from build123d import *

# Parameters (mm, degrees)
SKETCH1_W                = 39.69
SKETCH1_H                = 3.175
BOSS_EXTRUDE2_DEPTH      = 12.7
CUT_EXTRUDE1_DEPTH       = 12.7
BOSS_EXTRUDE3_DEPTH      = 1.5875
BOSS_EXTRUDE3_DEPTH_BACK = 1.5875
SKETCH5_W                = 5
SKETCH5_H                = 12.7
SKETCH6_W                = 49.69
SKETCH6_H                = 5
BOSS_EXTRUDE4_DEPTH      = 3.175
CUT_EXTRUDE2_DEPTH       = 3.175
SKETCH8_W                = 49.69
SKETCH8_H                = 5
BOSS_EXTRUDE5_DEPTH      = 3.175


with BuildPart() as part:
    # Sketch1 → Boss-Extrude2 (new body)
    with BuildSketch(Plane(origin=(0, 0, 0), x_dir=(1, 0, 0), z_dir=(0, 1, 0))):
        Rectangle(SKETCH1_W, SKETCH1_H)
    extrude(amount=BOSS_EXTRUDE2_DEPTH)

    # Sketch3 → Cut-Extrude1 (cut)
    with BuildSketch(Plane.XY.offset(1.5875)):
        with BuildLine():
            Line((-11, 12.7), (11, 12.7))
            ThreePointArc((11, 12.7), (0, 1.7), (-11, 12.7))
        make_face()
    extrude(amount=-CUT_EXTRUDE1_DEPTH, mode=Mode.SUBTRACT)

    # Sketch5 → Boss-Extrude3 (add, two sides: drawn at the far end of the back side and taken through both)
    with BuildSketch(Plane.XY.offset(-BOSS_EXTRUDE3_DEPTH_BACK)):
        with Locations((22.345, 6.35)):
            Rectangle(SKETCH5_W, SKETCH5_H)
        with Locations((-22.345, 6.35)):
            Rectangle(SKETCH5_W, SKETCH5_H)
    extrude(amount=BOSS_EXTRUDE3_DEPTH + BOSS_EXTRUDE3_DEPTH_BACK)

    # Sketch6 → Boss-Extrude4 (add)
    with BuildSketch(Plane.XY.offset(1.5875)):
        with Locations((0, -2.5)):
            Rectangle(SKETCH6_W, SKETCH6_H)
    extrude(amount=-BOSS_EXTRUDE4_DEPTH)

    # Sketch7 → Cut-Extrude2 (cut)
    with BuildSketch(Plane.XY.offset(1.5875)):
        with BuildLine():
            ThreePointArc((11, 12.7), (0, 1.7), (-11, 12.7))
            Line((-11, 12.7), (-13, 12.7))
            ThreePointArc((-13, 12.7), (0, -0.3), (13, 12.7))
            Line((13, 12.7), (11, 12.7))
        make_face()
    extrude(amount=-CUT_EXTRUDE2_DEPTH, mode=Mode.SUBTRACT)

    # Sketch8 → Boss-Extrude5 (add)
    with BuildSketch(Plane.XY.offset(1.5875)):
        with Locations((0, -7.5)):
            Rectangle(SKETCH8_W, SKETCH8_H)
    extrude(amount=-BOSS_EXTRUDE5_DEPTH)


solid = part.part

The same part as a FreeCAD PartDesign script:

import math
import FreeCAD as App
import Part
import Sketcher

doc = App.newDocument("Part")
body = doc.addObject("PartDesign::Body", "Body")

sketch1 = doc.addObject("Sketcher::SketchObject", "Sketch")
body.addObject(sketch1)
sketch1.AttachmentSupport = (doc.XZ_Plane, [""])
sketch1.MapMode = "FlatFace"
sketch1.addGeometry([
    Part.LineSegment(App.Vector(-19.8, -1.6, 0), App.Vector(-19.8, 1.6, 0)),
    Part.LineSegment(App.Vector(-19.8, 1.6, 0), App.Vector(19.8, 1.6, 0)),
    Part.LineSegment(App.Vector(19.8, 1.6, 0), App.Vector(19.8, -1.6, 0)),
    Part.LineSegment(App.Vector(19.8, -1.6, 0), App.Vector(-19.8, -1.6, 0)),
], False)
sketch1.addConstraint([
    Sketcher.Constraint("Coincident", 0, 2, 1, 1),
    Sketcher.Constraint("Coincident", 1, 2, 2, 1),
    Sketcher.Constraint("Coincident", 2, 2, 3, 1),
    Sketcher.Constraint("Coincident", 3, 2, 0, 1),
    Sketcher.Constraint("Vertical", 0),
    Sketcher.Constraint("Horizontal", 1),
    Sketcher.Constraint("Vertical", 2),
    Sketcher.Constraint("Horizontal", 3),
    Sketcher.Constraint("Symmetric", 0, 2, 2, 2, -1, 1),
    Sketcher.Constraint("DistanceX", 1, 1, 1, 2, 39.69),
    Sketcher.Constraint("DistanceY", 0, 1, 0, 2, 3.175),
])
pad1 = doc.addObject("PartDesign::Pad", "Pad")
body.addObject(pad1)
pad1.Profile = sketch1
pad1.Length = 12.7
pad1.Reversed = True

sketch2 = doc.addObject("Sketcher::SketchObject", "Sketch001")
body.addObject(sketch2)
sketch2.AttachmentSupport = (doc.XY_Plane, [""])
sketch2.MapMode = "FlatFace"
sketch2.AttachmentOffset = App.Placement(App.Vector(0, 0, 1.5875), App.Rotation())
sketch2.addGeometry([
    Part.LineSegment(App.Vector(11, 13, 0), App.Vector(-11, 13, 0)),
    Part.ArcOfCircle(Part.Circle(App.Vector(0, 13, 0), App.Vector(0, 0, 1), 11), math.radians(180), math.radians(360)),
], False)
sketch2.addConstraint([
    Sketcher.Constraint("Coincident", 0, 1, 1, 2),
    Sketcher.Constraint("Coincident", 1, 1, 0, 2),
    Sketcher.Constraint("Horizontal", 0),
    Sketcher.Constraint("PointOnObject", 1, 3, -2),
    Sketcher.Constraint("Horizontal", 1, 3, 0, 1),
    Sketcher.Constraint("Radius", 1, 11.0),
    Sketcher.Constraint("DistanceY", -1, 1, 1, 3, 12.7),
])
pocket1 = doc.addObject("PartDesign::Pocket", "Pocket")
body.addObject(pocket1)
pocket1.Profile = sketch2
pocket1.Length = 12.7

sketch3 = doc.addObject("Sketcher::SketchObject", "Sketch002")
body.addObject(sketch3)
sketch3.AttachmentSupport = (doc.XY_Plane, [""])
sketch3.MapMode = "FlatFace"
sketch3.addGeometry([
    Part.LineSegment(App.Vector(20, 13, 0), App.Vector(20, 0, 0)),
    Part.LineSegment(App.Vector(20, 0, 0), App.Vector(25, 0, 0)),
    Part.LineSegment(App.Vector(25, 0, 0), App.Vector(25, 13, 0)),
    Part.LineSegment(App.Vector(25, 13, 0), App.Vector(20, 13, 0)),
    Part.LineSegment(App.Vector(-25, 13, 0), App.Vector(-25, 0, 0)),
    Part.LineSegment(App.Vector(-25, 0, 0), App.Vector(-20, 0, 0)),
    Part.LineSegment(App.Vector(-20, 0, 0), App.Vector(-20, 13, 0)),
    Part.LineSegment(App.Vector(-20, 13, 0), App.Vector(-25, 13, 0)),
], False)
sketch3.addConstraint([
    Sketcher.Constraint("Coincident", 0, 2, 1, 1),
    Sketcher.Constraint("Coincident", 1, 2, 2, 1),
    Sketcher.Constraint("Coincident", 2, 2, 3, 1),
    Sketcher.Constraint("Coincident", 3, 2, 0, 1),
    Sketcher.Constraint("Coincident", 4, 2, 5, 1),
    Sketcher.Constraint("Coincident", 5, 2, 6, 1),
    Sketcher.Constraint("Coincident", 6, 2, 7, 1),
    Sketcher.Constraint("Coincident", 7, 2, 4, 1),
    Sketcher.Constraint("Vertical", 0),
    Sketcher.Constraint("Horizontal", 1),
    Sketcher.Constraint("Vertical", 2),
    Sketcher.Constraint("Horizontal", 3),
    Sketcher.Constraint("Vertical", 4),
    Sketcher.Constraint("Horizontal", 5),
    Sketcher.Constraint("Vertical", 6),
    Sketcher.Constraint("Horizontal", 7),
    Sketcher.Constraint("Symmetric", 1, 2, 4, 2, -1, 1),
    Sketcher.Constraint("Symmetric", 0, 2, 5, 2, -2),
    Sketcher.Constraint("Horizontal", 3, 2, 6, 2),
    Sketcher.Constraint("DistanceX", 1, 1, 1, 2, 5.0),
    Sketcher.Constraint("DistanceY", 0, 2, 0, 1, 12.7),
    Sketcher.Constraint("DistanceX", 4, 2, 0, 2, 44.69),
])
pad2 = doc.addObject("PartDesign::Pad", "Pad001")
body.addObject(pad2)
pad2.Profile = sketch3
pad2.Type = "TwoLengths"
pad2.Length = 1.5875
pad2.Length2 = 1.5875

sketch4 = doc.addObject("Sketcher::SketchObject", "Sketch003")
body.addObject(sketch4)
sketch4.AttachmentSupport = (doc.XY_Plane, [""])
sketch4.MapMode = "FlatFace"
sketch4.AttachmentOffset = App.Placement(App.Vector(0, 0, 1.5875), App.Rotation())
sketch4.addGeometry([
    Part.LineSegment(App.Vector(-25, 0, 0), App.Vector(-25, -5, 0)),
    Part.LineSegment(App.Vector(-25, -5, 0), App.Vector(25, -5, 0)),
    Part.LineSegment(App.Vector(25, -5, 0), App.Vector(25, 0, 0)),
    Part.LineSegment(App.Vector(25, 0, 0), App.Vector(-25, 0, 0)),
], False)
sketch4.addConstraint([
    Sketcher.Constraint("Coincident", 0, 2, 1, 1),
    Sketcher.Constraint("Coincident", 1, 2, 2, 1),
    Sketcher.Constraint("Coincident", 2, 2, 3, 1),
    Sketcher.Constraint("Coincident", 3, 2, 0, 1),
    Sketcher.Constraint("Vertical", 0),
    Sketcher.Constraint("Horizontal", 1),
    Sketcher.Constraint("Vertical", 2),
    Sketcher.Constraint("Horizontal", 3),
    Sketcher.Constraint("Symmetric", 2, 2, 3, 2, -1, 1),
    Sketcher.Constraint("DistanceY", 0, 2, 0, 1, 5.0),
    Sketcher.Constraint("DistanceX", 1, 1, 1, 2, 49.69),
])
pad3 = doc.addObject("PartDesign::Pad", "Pad002")
body.addObject(pad3)
pad3.Profile = sketch4
pad3.Length = 3.175
pad3.Reversed = True

sketch5 = doc.addObject("Sketcher::SketchObject", "Sketch004")
body.addObject(sketch5)
sketch5.AttachmentSupport = (doc.XY_Plane, [""])
sketch5.MapMode = "FlatFace"
sketch5.AttachmentOffset = App.Placement(App.Vector(0, 0, 1.5875), App.Rotation())
sketch5.addGeometry([
    Part.ArcOfCircle(Part.Circle(App.Vector(0, 12.7, 0), App.Vector(0, 0, 1), 11), math.radians(180), math.radians(360)),
    Part.LineSegment(App.Vector(-11, 12.7, 0), App.Vector(-13, 12.7, 0)),
    Part.ArcOfCircle(Part.Circle(App.Vector(0, 12.7, 0), App.Vector(0, 0, 1), 13), math.radians(180), math.radians(360)),
    Part.LineSegment(App.Vector(13, 12.7, 0), App.Vector(11, 12.7, 0)),
], False)
sketch5.addConstraint([
    Sketcher.Constraint("Coincident", 0, 1, 1, 1),
    Sketcher.Constraint("Coincident", 1, 2, 2, 1),
    Sketcher.Constraint("Coincident", 2, 2, 3, 1),
    Sketcher.Constraint("Coincident", 3, 2, 0, 2),
    Sketcher.Constraint("Horizontal", 1),
    Sketcher.Constraint("Horizontal", 3),
    Sketcher.Constraint("Coincident", 2, 3, 0, 3),
    Sketcher.Constraint("Symmetric", 1, 2, 2, 2, -2),
    Sketcher.Constraint("Horizontal", 2, 3, 0, 1),
    Sketcher.Constraint("Radius", 0, 11.0),
    Sketcher.Constraint("Radius", 2, 13.0),
    Sketcher.Constraint("DistanceY", -1, 1, 0, 3, 12.7),
])
pocket2 = doc.addObject("PartDesign::Pocket", "Pocket001")
body.addObject(pocket2)
pocket2.Profile = sketch5
pocket2.Length = 3.175

sketch6 = doc.addObject("Sketcher::SketchObject", "Sketch005")
body.addObject(sketch6)
sketch6.AttachmentSupport = (doc.XY_Plane, [""])
sketch6.MapMode = "FlatFace"
sketch6.AttachmentOffset = App.Placement(App.Vector(0, 0, 1.5875), App.Rotation())
sketch6.addGeometry([
    Part.LineSegment(App.Vector(-25, -5, 0), App.Vector(-25, -10, 0)),
    Part.LineSegment(App.Vector(-25, -10, 0), App.Vector(25, -10, 0)),
    Part.LineSegment(App.Vector(25, -10, 0), App.Vector(25, -5, 0)),
    Part.LineSegment(App.Vector(25, -5, 0), App.Vector(-25, -5, 0)),
], False)
sketch6.addConstraint([
    Sketcher.Constraint("Coincident", 0, 2, 1, 1),
    Sketcher.Constraint("Coincident", 1, 2, 2, 1),
    Sketcher.Constraint("Coincident", 2, 2, 3, 1),
    Sketcher.Constraint("Coincident", 3, 2, 0, 1),
    Sketcher.Constraint("Vertical", 0),
    Sketcher.Constraint("Horizontal", 1),
    Sketcher.Constraint("Vertical", 2),
    Sketcher.Constraint("Horizontal", 3),
    Sketcher.Constraint("DistanceY", 0, 2, 0, 1, 5.0),
    Sketcher.Constraint("DistanceY", 0, 2, -1, 1, 10.0),
    Sketcher.Constraint("DistanceX", 1, 1, 1, 2, 49.69),
    Sketcher.Constraint("DistanceX", 0, 2, -1, 1, 24.845),
])
pad4 = doc.addObject("PartDesign::Pad", "Pad003")
body.addObject(pad4)
pad4.Profile = sketch6
pad4.Length = 3.175
pad4.Reversed = True

doc.recompute()
